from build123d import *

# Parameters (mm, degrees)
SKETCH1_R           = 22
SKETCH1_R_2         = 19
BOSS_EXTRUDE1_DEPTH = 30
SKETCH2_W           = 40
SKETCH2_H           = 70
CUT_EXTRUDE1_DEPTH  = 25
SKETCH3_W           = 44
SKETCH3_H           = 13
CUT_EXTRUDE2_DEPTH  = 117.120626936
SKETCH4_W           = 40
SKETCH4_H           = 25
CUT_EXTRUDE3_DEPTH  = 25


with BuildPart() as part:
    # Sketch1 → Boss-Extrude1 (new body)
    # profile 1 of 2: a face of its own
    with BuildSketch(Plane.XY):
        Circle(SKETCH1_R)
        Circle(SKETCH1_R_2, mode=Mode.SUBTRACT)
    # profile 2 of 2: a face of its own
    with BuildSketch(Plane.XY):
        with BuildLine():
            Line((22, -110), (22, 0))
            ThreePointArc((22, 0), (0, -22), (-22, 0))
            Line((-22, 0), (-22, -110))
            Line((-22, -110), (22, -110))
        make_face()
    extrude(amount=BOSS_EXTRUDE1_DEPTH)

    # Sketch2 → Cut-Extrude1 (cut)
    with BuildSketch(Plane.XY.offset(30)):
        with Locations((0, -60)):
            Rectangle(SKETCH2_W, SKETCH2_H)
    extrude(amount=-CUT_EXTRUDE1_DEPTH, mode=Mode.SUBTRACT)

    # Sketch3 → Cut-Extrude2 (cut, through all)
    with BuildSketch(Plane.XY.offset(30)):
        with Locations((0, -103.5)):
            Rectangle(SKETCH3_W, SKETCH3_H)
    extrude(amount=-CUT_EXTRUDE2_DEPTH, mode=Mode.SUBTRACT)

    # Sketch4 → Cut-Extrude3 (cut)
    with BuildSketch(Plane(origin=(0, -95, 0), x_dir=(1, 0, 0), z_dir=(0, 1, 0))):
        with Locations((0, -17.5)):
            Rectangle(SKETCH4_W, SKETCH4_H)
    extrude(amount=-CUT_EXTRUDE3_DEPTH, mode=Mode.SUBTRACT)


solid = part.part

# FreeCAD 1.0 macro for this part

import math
import FreeCAD as App
import Part
import Sketcher
from FreeCAD import Vector


def add_polygon(sketch, points):
    """Adds a closed chain of lines whose ends are joined by coincident constraints."""
    first, n = sketch.GeometryCount, len(points)
    for a, b in zip(points, points[1:] + points[:1]):
        sketch.addGeometry(Part.LineSegment(App.Vector(*a, 0), App.Vector(*b, 0)), False)
    for i in range(n):
        sketch.addConstraint(Sketcher.Constraint("Coincident", first + i, 2, first + (i + 1) % n, 1))

doc = App.newDocument("Part")
body = doc.addObject("PartDesign::Body", "Body")

# Sketch on XY plane
sketch1 = doc.addObject("Sketcher::SketchObject", "Sketch")
body.addObject(sketch1)
sketch1.AttachmentSupport = (doc.XY_Plane, [""])
sketch1.MapMode = "FlatFace"
sketch1.addGeometry([
    Part.ArcOfCircle(Part.Circle(Vector(0, 0, 0), Vector(0, 0, 1), 22), math.radians(0), math.radians(180)),  # 0
    Part.LineSegment(Vector(-22, 0, 0), Vector(-22, -110, 0)),  # 1
    Part.LineSegment(Vector(-22, -110, 0), Vector(22, -110, 0)),  # 2
    Part.LineSegment(Vector(22, -110, 0), Vector(22, 0, 0)),  # 3
    Part.Circle(Vector(0, 0, 0), Vector(0, 0, 1), 19),  # 4
], False)
sketch1.addConstraint([
    Sketcher.Constraint("Tangent", 0, 2, 1, 1),
    Sketcher.Constraint("Coincident", 1, 2, 2, 1),
    Sketcher.Constraint("Coincident", 2, 2, 3, 1),
    Sketcher.Constraint("Tangent", 3, 2, 0, 1),
    Sketcher.Constraint("Vertical", 1),
    Sketcher.Constraint("Horizontal", 2),
    Sketcher.Constraint("Vertical", 3),
    Sketcher.Constraint("Coincident", 0, 3, -1, 1),
    Sketcher.Constraint("Coincident", 4, 3, -1, 1),
    Sketcher.Constraint("Diameter", 4, 38.0),
    Sketcher.Constraint("Radius", 0, 22.0),
    Sketcher.Constraint("DistanceY", 1, 2, 1, 1, 110.0),
])
pad1 = doc.addObject("PartDesign::Pad", "Pad")
body.addObject(pad1)
pad1.Profile = sketch1
pad1.Length = 30

# Sketch on XY plane
sketch2 = doc.addObject("Sketcher::SketchObject", "Sketch001")
body.addObject(sketch2)
sketch2.AttachmentSupport = (doc.XY_Plane, [""])
sketch2.MapMode = "FlatFace"
sketch2.AttachmentOffset = App.Placement(Vector(0, 0, 30), App.Rotation())
add_polygon(sketch2, [(-20, -25), (-20, -95), (20, -95), (20, -25)])  # lines 0-3
sketch2.addConstraint([
    Sketcher.Constraint("Vertical", 0),
    Sketcher.Constraint("Horizontal", 1),
    Sketcher.Constraint("Vertical", 2),
    Sketcher.Constraint("Horizontal", 3),
    Sketcher.Constraint("DistanceX", 1, 1, 1, 2, 40.0),
    Sketcher.Constraint("DistanceY", 0, 2, 0, 1, 70.0),
    Sketcher.Constraint("DistanceX", 0, 2, -1, 1, 20.0),
    Sketcher.Constraint("DistanceY", 0, 2, -1, 1, 95.0),
])
pocket1 = doc.addObject("PartDesign::Pocket", "Pocket")
body.addObject(pocket1)
pocket1.Profile = sketch2
pocket1.Length = 25

# Sketch on XY plane
sketch3 = doc.addObject("Sketcher::SketchObject", "Sketch002")
body.addObject(sketch3)
sketch3.AttachmentSupport = (doc.XY_Plane, [""])
sketch3.MapMode = "FlatFace"
sketch3.AttachmentOffset = App.Placement(Vector(0, 0, 30), App.Rotation())
add_polygon(sketch3, [(-22, -97), (-22, -110), (22, -110), (22, -97)])  # lines 0-3
sketch3.addConstraint([
    Sketcher.Constraint("Vertical", 0),
    Sketcher.Constraint("Horizontal", 1),
    Sketcher.Constraint("Vertical", 2),
    Sketcher.Constraint("Horizontal", 3),
    Sketcher.Constraint("DistanceX", 1, 1, 1, 2, 44.0),
    Sketcher.Constraint("DistanceY", 0, 2, 0, 1, 13.0),
    Sketcher.Constraint("DistanceX", 0, 2, -1, 1, 22.0),
    Sketcher.Constraint("DistanceY", 0, 2, -1, 1, 110.0),
])
pocket2 = doc.addObject("PartDesign::Pocket", "Pocket001")
body.addObject(pocket2)
pocket2.Profile = sketch3
pocket2.Type = "ThroughAll"

# Sketch on XZ plane
sketch4 = doc.addObject("Sketcher::SketchObject", "Sketch003")
body.addObject(sketch4)
sketch4.AttachmentSupport = (doc.XZ_Plane, [""])
sketch4.MapMode = "FlatFace"
sketch4.AttachmentOffset = App.Placement(Vector(0, 0, 95), App.Rotation())
add_polygon(sketch4, [(-20, 5), (-20, 30), (20, 30), (20, 5)])  # lines 0-3
sketch4.addConstraint([
    Sketcher.Constraint("Vertical", 0),
    Sketcher.Constraint("Horizontal", 1),
    Sketcher.Constraint("Vertical", 2),
    Sketcher.Constraint("Horizontal", 3),
    Sketcher.Constraint("DistanceX", 1, 1, 1, 2, 40.0),
    Sketcher.Constraint("DistanceY", 0, 1, 0, 2, 25.0),
    Sketcher.Constraint("DistanceX", 0, 2, -1, 1, 20.0),
    Sketcher.Constraint("DistanceY", -1, 1, 0, 2, 30.0),
])
pocket3 = doc.addObject("PartDesign::Pocket", "Pocket002")
body.addObject(pocket3)
pocket3.Profile = sketch4
pocket3.Length = 25
pocket3.Reversed = True

doc.recompute()
